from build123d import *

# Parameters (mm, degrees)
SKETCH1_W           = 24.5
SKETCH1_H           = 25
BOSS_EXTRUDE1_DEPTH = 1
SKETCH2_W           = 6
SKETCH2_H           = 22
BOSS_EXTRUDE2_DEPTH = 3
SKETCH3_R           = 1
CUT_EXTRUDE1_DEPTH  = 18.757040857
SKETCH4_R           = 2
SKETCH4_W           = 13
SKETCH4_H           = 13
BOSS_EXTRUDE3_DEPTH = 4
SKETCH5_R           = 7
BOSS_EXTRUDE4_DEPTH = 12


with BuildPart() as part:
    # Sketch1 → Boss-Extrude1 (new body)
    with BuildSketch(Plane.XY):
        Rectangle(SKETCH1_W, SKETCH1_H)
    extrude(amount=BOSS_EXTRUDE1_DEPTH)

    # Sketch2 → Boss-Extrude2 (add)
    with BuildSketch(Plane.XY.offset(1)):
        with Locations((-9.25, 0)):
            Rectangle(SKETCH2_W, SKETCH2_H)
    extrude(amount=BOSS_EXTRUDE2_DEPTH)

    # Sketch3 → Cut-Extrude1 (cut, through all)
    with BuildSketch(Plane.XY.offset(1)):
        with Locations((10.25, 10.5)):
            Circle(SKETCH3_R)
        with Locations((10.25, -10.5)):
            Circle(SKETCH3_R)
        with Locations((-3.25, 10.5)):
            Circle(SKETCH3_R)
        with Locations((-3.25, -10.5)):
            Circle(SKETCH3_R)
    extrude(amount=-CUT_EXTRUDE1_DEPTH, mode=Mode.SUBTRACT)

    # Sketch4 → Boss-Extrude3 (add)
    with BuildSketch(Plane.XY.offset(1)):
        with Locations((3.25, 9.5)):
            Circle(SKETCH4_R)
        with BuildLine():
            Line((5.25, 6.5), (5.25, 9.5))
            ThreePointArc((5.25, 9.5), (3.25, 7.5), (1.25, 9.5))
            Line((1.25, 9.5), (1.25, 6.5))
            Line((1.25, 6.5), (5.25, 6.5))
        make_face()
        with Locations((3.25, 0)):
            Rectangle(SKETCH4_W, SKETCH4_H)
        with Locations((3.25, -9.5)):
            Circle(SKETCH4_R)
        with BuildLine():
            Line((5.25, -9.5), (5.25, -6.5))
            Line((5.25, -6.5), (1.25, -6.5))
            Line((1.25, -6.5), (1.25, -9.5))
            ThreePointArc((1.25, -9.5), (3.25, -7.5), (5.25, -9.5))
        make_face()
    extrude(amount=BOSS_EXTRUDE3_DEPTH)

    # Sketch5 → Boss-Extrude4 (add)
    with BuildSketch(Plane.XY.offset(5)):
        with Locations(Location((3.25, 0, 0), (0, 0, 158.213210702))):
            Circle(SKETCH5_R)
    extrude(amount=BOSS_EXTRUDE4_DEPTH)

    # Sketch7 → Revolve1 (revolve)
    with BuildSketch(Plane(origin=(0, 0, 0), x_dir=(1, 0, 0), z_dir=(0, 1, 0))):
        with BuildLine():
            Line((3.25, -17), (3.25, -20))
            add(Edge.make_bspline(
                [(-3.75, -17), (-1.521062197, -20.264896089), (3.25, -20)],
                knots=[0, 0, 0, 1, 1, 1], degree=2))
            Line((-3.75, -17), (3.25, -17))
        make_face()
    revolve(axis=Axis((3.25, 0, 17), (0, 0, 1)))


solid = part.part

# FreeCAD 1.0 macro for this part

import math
import FreeCAD as App
import Part
import Sketcher

doc = App.newDocument("Part")
body = doc.addObject("PartDesign::Body", "Body")

# Sketch on XY plane
sketch1 = body.newObject("Sketcher::SketchObject", "Sketch")
sketch1.AttachmentSupport = (doc.getObject("XY_Plane"), [""])
sketch1.MapMode = "FlatFace"
sketch1.addGeometry([
    Part.LineSegment(App.Vector(-12, 12, 0), App.Vector(-12, -12, 0)),
    Part.LineSegment(App.Vector(-12, -12, 0), App.Vector(12, -12, 0)),
    Part.LineSegment(App.Vector(12, -12, 0), App.Vector(12, 12, 0)),
    Part.LineSegment(App.Vector(12, 12, 0), App.Vector(-12, 12, 0)),
], False)
sketch1.addConstraint([
    Sketcher.Constraint("Coincident", 0, 2, 1, 1),
    Sketcher.Constraint("Coincident", 1, 2, 2, 1),
    Sketcher.Constraint("Coincident", 2, 2, 3, 1),
    Sketcher.Constraint("Coincident", 3, 2, 0, 1),
    Sketcher.Constraint("Vertical", 0),
    Sketcher.Constraint("Horizontal", 1),
    Sketcher.Constraint("Vertical", 2),
    Sketcher.Constraint("Horizontal", 3),
    Sketcher.Constraint("Symmetric", 0, 2, 2, 2, -1, 1),
    Sketcher.Constraint("DistanceY", 0, 2, 0, 1, 25.0),
    Sketcher.Constraint("DistanceX", 1, 1, 1, 2, 24.5),
])
pad1 = body.newObject("PartDesign::Pad", "Pad")
pad1.Profile = sketch1
pad1.Length = 1

# Sketch on XY plane
sketch2 = body.newObject("Sketcher::SketchObject", "Sketch001")
sketch2.AttachmentSupport = (doc.getObject("XY_Plane"), [""])
sketch2.MapMode = "FlatFace"
sketch2.AttachmentOffset = App.Placement(App.Vector(0, 0, 1), App.Rotation())
sketch2.addGeometry([
    Part.LineSegment(App.Vector(-12, 11, 0), App.Vector(-12, -11, 0)),
    Part.LineSegment(App.Vector(-12, -11, 0), App.Vector(-6, -11, 0)),
    Part.LineSegment(App.Vector(-6, -11, 0), App.Vector(-6, 11, 0)),
    Part.LineSegment(App.Vector(-6, 11, 0), App.Vector(-12, 11, 0)),
], False)
sketch2.addConstraint([
    Sketcher.Constraint("Coincident", 0, 2, 1, 1),
    Sketcher.Constraint("Coincident", 1, 2, 2, 1),
    Sketcher.Constraint("Coincident", 2, 2, 3, 1),
    Sketcher.Constraint("Coincident", 3, 2, 0, 1),
    Sketcher.Constraint("Vertical", 0),
    Sketcher.Constraint("Horizontal", 1),
    Sketcher.Constraint("Vertical", 2),
    Sketcher.Constraint("Horizontal", 3),
    Sketcher.Constraint("DistanceX", 1, 1, 1, 2, 6.0),
    Sketcher.Constraint("DistanceY", 0, 2, 0, 1, 22.0),
    Sketcher.Constraint("DistanceY", 0, 2, -1, 1, 11.0),
    Sketcher.Constraint("DistanceX", 0, 2, -1, 1, 12.25),
])
pad2 = body.newObject("PartDesign::Pad", "Pad001")
pad2.Profile = sketch2
pad2.Length = 3

# Sketch on XY plane
sketch3 = body.newObject("Sketcher::SketchObject", "Sketch002")
sketch3.AttachmentSupport = (doc.getObject("XY_Plane"), [""])
sketch3.MapMode = "FlatFace"
sketch3.AttachmentOffset = App.Placement(App.Vector(0, 0, 1), App.Rotation())
sketch3.addGeometry([
    Part.Circle(App.Vector(10.2, 10.5, 0), App.Vector(0, 0, 1), 1),
    Part.Circle(App.Vector(10.2, -10.5, 0), App.Vector(0, 0, 1), 1),
    Part.Circle(App.Vector(-3.2, 10.5, 0), App.Vector(0, 0, 1), 1),
    Part.Circle(App.Vector(-3.2, -10.5, 0), App.Vector(0, 0, 1), 1),
], False)
sketch3.addConstraint([
    Sketcher.Constraint("Equal", 0, 1),
    Sketcher.Constraint("Equal", 1, 2),
    Sketcher.Constraint("Equal", 2, 3),
    Sketcher.Constraint("Symmetric", 0, 3, 1, 3, -1),
    Sketcher.Constraint("Symmetric", 2, 3, 3, 3, -1),
    Sketcher.Constraint("Horizontal", 0, 3, 2, 3),
    Sketcher.Constraint("Diameter", 0, 2.0),
    Sketcher.Constraint("DistanceY", 1, 3, 0, 3, 21.0),
    Sketcher.Constraint("DistanceX", 2, 3, 0, 3, 13.5),
    Sketcher.Constraint("DistanceX", -1, 1, 0, 3, 10.25),
])
pocket1 = body.newObject("PartDesign::Pocket", "Pocket")
pocket1.Profile = sketch3
pocket1.Type = "ThroughAll"

# Sketch on XY plane
sketch4 = body.newObject("Sketcher::SketchObject", "Sketch003")
sketch4.AttachmentSupport = (doc.getObject("XY_Plane"), [""])
sketch4.MapMode = "FlatFace"
sketch4.AttachmentOffset = App.Placement(App.Vector(0, 0, 1), App.Rotation())
sketch4.addGeometry([
    Part.ArcOfCircle(Part.Circle(App.Vector(3.2, 9.5, 0), App.Vector(0, 0, 1), 2), math.radians(0), math.radians(180)),  # 0
    Part.LineSegment(App.Vector(1.2, 9.5, 0), App.Vector(1.2, 6.5, 0)),  # 1
    Part.LineSegment(App.Vector(1.2, 6.5, 0), App.Vector(-3.2, 6.5, 0)),  # 2
    Part.LineSegment(App.Vector(-3.2, 6.5, 0), App.Vector(-3.2, -6.5, 0)),  # 3
    Part.LineSegment(App.Vector(-3.2, -6.5, 0), App.Vector(1.2, -6.5, 0)),  # 4
    Part.LineSegment(App.Vector(1.2, -6.5, 0), App.Vector(1.2, -9.5, 0)),  # 5
    Part.ArcOfCircle(Part.Circle(App.Vector(3.2, -9.5, 0), App.Vector(0, 0, 1), 2), math.radians(180), math.radians(360)),  # 6
    Part.LineSegment(App.Vector(5.2, -9.5, 0), App.Vector(5.2, -6.5, 0)),  # 7
    Part.LineSegment(App.Vector(5.2, -6.5, 0), App.Vector(9.8, -6.5, 0)),  # 8
    Part.LineSegment(App.Vector(9.8, -6.5, 0), App.Vector(9.8, 6.5, 0)),  # 9
    Part.LineSegment(App.Vector(9.8, 6.5, 0), App.Vector(5.2, 6.5, 0)),  # 10
    Part.LineSegment(App.Vector(5.2, 6.5, 0), App.Vector(5.2, 9.5, 0)),  # 11
], False)
sketch4.addConstraint([
    Sketcher.Constraint("Tangent", 0, 2, 1, 1),
    Sketcher.Constraint("Coincident", 1, 2, 2, 1),
    Sketcher.Constraint("Coincident", 2, 2, 3, 1),
    Sketcher.Constraint("Coincident", 3, 2, 4, 1),
    Sketcher.Constraint("Coincident", 4, 2, 5, 1),
    Sketcher.Constraint("Tangent", 5, 2, 6, 1),
    Sketcher.Constraint("Tangent", 6, 2, 7, 1),
    Sketcher.Constraint("Coincident", 7, 2, 8, 1),
    Sketcher.Constraint("Coincident", 8, 2, 9, 1),
    Sketcher.Constraint("Coincident", 9, 2, 10, 1),
    Sketcher.Constraint("Coincident", 10, 2, 11, 1),
    Sketcher.Constraint("Tangent", 11, 2, 0, 1),
    Sketcher.Constraint("Vertical", 1),
    Sketcher.Constraint("Horizontal", 2),
    Sketcher.Constraint("Vertical", 3),
    Sketcher.Constraint("Horizontal", 4),
    Sketcher.Constraint("Vertical", 5),
    Sketcher.Constraint("Vertical", 7),
    Sketcher.Constraint("Horizontal", 8),
    Sketcher.Constraint("Vertical", 9),
    Sketcher.Constraint("Horizontal", 10),
    Sketcher.Constraint("Vertical", 11),
    Sketcher.Constraint("Equal", 0, 6),
    Sketcher.Constraint("Symmetric", 0, 3, 6, 3, -1),
    Sketcher.Constraint("Horizontal", 4, 2, 7, 2),
    Sketcher.Constraint("Horizontal", 2, 2, 9, 2),
    Sketcher.Constraint("Equal", 4, 8),
    Sketcher.Constraint("Equal", 1, 5),
    Sketcher.Constraint("Radius", 0, 2.0),
    Sketcher.Constraint("DistanceY", 1, 2, 1, 1, 3.0),
    Sketcher.Constraint("DistanceY", 3, 2, 3, 1, 13.0),
    Sketcher.Constraint("DistanceX", 2, 2, 2, 1, 4.5),
    Sketcher.Constraint("DistanceX", -1, 1, 0, 3, 3.25),
])
pad3 = body.newObject("PartDesign::Pad", "Pad002")
pad3.Profile = sketch4
pad3.Length = 4

# Sketch on XY plane
sketch5 = body.newObject("Sketcher::SketchObject", "Sketch004")
sketch5.AttachmentSupport = (doc.getObject("XY_Plane"), [""])
sketch5.MapMode = "FlatFace"
sketch5.AttachmentOffset = App.Placement(App.Vector(0, 0, 5), App.Rotation())
sketch5.addGeometry(Part.Circle(App.Vector(3, 0, 0), App.Vector(0, 0, 1), 7), False)
sketch5.addConstraint([
    Sketcher.Constraint("PointOnObject", 0, 3, -1),
    Sketcher.Constraint("Diameter", 0, 14.0),
    Sketcher.Constraint("DistanceX", -1, 1, 0, 3, 3.25),
])
pad4 = body.newObject("PartDesign::Pad", "Pad003")
pad4.Profile = sketch5
pad4.Length = 12

# Sketch on XZ plane
sketch6 = body.newObject("Sketcher::SketchObject", "Sketch005")
sketch6.AttachmentSupport = (doc.getObject("XZ_Plane"), [""])
sketch6.MapMode = "FlatFace"
sketch6.addGeometry([
    Part.LineSegment(App.Vector(3.25, 20, 0), App.Vector(3.25, 17, 0)),
    Part.LineSegment(App.Vector(3.25, 17, 0), App.Vector(-3.75, 17, 0)),
    Part.BSplineCurve([App.Vector(-3.75, 17, 0), App.Vector(-1.521062, 20.264896, 0), App.Vector(3.25, 20, 0)], [3, 3], [0, 1], False, 2, [1, 1, 1], False),
], False)
sketch6.addGeometry(Part.LineSegment(App.Vector(3.25, 17, 0), App.Vector(3.25, 20, 0)), True)  # axis
sketch6.addConstraint([
    Sketcher.Constraint("Block", 2),
    Sketcher.Constraint("Coincident", 0, 2, 1, 1),
    Sketcher.Constraint("Coincident", 1, 2, 2, 1),
    Sketcher.Constraint("Coincident", 2, 2, 0, 1),
    Sketcher.Constraint("Vertical", 0),
    Sketcher.Constraint("Horizontal", 1),
    Sketcher.Constraint("Vertical", 3),
    Sketcher.Constraint("Coincident", 3, 1, 0, 2),
    Sketcher.Constraint("Equal", 0, 3),
])
revolution = body.newObject("PartDesign::Revolution", "Revolution")
revolution.Profile = sketch6
revolution.ReferenceAxis = (sketch6, ["Axis0"])
revolution.Angle = 360

doc.recompute()
